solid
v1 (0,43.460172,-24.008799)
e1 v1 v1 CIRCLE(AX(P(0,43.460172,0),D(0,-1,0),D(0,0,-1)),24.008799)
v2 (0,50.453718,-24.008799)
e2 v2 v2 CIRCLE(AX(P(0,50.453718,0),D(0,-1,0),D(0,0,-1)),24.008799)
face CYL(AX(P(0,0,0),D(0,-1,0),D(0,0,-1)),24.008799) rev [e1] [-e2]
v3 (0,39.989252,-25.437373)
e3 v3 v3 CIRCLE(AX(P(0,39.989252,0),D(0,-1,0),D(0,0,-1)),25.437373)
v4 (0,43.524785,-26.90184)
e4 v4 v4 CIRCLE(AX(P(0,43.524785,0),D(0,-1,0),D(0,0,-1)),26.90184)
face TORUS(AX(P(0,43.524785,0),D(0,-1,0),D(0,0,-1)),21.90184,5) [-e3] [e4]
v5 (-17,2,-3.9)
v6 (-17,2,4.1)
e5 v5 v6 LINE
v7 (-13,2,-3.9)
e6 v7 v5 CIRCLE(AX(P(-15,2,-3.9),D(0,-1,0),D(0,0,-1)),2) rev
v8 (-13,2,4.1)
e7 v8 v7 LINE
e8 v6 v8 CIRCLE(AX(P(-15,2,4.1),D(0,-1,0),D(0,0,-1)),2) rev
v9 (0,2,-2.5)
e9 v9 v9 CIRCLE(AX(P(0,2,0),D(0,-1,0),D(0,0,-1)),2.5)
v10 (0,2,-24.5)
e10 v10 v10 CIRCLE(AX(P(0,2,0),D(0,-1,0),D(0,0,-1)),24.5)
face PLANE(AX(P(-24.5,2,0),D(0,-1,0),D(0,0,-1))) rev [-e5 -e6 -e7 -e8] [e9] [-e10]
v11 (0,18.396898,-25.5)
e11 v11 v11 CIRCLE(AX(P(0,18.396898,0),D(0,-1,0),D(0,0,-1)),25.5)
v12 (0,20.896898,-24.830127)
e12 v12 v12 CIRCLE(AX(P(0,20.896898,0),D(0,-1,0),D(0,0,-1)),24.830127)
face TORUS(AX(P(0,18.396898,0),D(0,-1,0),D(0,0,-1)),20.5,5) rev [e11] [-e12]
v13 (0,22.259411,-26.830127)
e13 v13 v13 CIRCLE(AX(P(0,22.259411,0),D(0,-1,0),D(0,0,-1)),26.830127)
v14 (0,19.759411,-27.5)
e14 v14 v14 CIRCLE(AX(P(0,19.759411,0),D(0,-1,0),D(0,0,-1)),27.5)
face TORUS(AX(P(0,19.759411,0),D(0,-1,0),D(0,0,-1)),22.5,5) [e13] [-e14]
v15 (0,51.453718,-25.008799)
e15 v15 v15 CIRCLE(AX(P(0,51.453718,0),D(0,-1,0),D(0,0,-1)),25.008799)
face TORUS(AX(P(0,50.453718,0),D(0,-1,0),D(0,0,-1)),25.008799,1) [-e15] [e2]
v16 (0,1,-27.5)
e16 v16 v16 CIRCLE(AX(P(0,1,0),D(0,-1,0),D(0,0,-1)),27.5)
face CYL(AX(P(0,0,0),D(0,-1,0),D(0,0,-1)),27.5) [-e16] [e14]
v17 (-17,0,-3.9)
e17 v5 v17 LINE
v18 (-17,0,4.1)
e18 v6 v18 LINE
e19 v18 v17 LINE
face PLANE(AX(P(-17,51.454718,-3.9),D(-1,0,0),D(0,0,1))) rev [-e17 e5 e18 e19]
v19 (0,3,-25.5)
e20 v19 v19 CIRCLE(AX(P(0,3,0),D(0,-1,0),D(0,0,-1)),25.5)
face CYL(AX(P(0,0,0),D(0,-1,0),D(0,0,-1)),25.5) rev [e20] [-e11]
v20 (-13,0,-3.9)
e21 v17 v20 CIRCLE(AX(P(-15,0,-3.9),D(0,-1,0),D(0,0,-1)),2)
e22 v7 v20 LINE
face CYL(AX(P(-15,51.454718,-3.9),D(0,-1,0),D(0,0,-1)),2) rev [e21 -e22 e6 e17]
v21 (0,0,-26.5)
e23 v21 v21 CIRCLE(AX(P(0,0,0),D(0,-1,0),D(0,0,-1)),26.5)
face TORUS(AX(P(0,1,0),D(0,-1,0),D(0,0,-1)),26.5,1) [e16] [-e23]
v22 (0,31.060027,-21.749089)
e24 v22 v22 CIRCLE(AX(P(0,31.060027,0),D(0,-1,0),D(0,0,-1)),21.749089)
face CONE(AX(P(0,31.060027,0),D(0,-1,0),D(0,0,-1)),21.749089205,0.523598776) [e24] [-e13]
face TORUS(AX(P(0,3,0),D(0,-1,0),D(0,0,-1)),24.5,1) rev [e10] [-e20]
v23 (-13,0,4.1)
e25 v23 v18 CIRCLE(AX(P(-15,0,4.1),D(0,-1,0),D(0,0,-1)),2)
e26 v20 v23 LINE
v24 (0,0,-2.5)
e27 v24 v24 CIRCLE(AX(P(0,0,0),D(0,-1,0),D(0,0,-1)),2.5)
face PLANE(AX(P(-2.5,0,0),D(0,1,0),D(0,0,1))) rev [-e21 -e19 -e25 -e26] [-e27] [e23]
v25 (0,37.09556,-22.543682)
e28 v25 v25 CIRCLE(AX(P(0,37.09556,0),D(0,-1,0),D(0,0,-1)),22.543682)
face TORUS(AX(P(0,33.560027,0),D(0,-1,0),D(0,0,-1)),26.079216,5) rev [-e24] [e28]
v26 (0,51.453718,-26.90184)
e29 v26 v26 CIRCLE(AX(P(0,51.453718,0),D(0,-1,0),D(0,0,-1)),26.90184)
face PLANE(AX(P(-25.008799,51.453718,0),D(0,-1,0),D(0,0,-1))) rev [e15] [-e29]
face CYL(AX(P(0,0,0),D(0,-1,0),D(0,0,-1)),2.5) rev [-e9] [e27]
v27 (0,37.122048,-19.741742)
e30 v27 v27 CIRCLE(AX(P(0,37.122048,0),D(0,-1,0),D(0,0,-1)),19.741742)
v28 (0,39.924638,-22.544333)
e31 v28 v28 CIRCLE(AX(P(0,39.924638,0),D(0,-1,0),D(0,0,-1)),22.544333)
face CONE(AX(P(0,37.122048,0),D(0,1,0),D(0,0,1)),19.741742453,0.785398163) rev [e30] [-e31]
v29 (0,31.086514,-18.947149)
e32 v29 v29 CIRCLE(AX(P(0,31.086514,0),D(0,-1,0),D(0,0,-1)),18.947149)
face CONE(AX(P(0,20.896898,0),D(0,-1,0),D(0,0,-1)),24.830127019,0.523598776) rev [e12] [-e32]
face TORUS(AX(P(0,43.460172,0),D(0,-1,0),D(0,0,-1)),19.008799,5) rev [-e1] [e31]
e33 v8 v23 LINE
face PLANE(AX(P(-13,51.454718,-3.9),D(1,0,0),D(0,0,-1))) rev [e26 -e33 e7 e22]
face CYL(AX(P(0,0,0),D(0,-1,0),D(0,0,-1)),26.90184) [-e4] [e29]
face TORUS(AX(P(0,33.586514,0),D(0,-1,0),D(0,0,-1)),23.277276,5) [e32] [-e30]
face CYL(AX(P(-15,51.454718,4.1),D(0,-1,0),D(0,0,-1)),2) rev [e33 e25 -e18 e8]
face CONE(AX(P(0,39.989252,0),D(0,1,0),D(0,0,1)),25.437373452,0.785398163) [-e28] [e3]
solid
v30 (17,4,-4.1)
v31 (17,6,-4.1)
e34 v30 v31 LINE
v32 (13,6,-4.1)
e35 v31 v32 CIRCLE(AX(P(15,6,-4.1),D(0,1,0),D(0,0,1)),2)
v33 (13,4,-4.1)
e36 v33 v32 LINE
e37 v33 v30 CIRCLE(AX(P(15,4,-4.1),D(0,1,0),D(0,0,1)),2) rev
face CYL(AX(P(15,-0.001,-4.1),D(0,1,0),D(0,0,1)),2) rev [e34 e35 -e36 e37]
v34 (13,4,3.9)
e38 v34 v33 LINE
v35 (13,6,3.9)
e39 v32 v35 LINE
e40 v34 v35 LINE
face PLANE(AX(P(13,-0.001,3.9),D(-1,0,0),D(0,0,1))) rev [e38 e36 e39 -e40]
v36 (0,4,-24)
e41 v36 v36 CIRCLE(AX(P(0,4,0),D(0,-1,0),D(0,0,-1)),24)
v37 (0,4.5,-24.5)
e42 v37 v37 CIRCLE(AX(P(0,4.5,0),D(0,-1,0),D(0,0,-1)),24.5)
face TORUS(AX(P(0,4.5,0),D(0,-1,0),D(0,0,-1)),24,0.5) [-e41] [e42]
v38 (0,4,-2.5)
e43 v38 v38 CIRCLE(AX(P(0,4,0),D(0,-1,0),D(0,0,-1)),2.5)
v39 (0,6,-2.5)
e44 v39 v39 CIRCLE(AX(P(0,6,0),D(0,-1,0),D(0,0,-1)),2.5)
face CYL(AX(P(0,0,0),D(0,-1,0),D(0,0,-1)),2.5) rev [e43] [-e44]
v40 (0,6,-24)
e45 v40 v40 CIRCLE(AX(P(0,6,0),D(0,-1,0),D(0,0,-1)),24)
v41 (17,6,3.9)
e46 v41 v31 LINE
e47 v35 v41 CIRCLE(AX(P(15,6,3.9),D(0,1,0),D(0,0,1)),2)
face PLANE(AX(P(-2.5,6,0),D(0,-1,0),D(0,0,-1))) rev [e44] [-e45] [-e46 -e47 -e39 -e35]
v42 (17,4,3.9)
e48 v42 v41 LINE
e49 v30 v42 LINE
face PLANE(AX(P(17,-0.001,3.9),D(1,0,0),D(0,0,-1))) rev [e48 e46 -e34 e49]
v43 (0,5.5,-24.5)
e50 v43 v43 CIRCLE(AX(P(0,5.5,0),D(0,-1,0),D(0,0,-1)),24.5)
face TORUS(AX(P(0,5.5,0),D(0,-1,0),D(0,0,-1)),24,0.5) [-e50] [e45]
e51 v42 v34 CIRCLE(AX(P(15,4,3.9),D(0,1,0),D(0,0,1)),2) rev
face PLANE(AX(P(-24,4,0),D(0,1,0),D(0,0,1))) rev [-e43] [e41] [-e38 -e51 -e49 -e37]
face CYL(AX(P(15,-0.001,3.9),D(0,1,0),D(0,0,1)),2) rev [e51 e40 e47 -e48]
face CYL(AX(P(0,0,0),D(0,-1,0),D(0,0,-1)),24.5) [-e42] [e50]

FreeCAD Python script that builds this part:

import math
import FreeCAD as App
import Part
import Sketcher
Q = App.Units.Quantity

doc = App.newDocument("Part")
body = doc.addObject("PartDesign::Body", "Body")
body.AllowCompound = True

sketch1 = body.newObject("Sketcher::SketchObject", "Sketch")
sketch1.AttachmentSupport = (doc.getObject("XY_Plane"), [""])
sketch1.MapMode = "FlatFace"
sketch1.addGeometry([
    Part.LineSegment(App.Vector(-26.5, 0, 0), App.Vector(-2.5, 0, 0)),
    Part.LineSegment(App.Vector(-2.5, 0, 0), App.Vector(-2.5, 2, 0)),
    Part.LineSegment(App.Vector(-2.5, 2, 0), App.Vector(-24.5, 2, 0)),
    Part.ArcOfCircle(Part.Circle(App.Vector(-24.5, 3, 0), App.Vector(0, 0, 1), 1), math.radians(-180), math.radians(-90)),
    Part.LineSegment(App.Vector(-25.5, 3, 0), App.Vector(-25.5, 18.4, 0)),
    Part.ArcOfCircle(Part.Circle(App.Vector(-20.5, 18.4, 0), App.Vector(0, 0, 1), 5), math.radians(150), math.radians(180)),
    Part.LineSegment(App.Vector(-24.83, 20.9, 0), App.Vector(-18.95, 31.09, 0)),
    Part.ArcOfCircle(Part.Circle(App.Vector(-23.28, 33.59, 0), App.Vector(0, 0, 1), 5), math.radians(-30), math.radians(45)),
    Part.LineSegment(App.Vector(-19.74, 37.12, 0), App.Vector(-22.54, 39.92, 0)),
    Part.ArcOfCircle(Part.Circle(App.Vector(-19.01, 43.46, 0), App.Vector(0, 0, 1), 5), math.radians(-180), math.radians(-135)),
    Part.LineSegment(App.Vector(-24.01, 43.46, 0), App.Vector(-24.01, 50.45, 0)),
    Part.ArcOfCircle(Part.Circle(App.Vector(-25.01, 50.45, 0), App.Vector(0, 0, 1), 1), math.radians(0), math.radians(90)),
    Part.LineSegment(App.Vector(-25.01, 51.45, 0), App.Vector(-26.9, 51.45, 0)),
    Part.LineSegment(App.Vector(-26.9, 51.45, 0), App.Vector(-26.9, 43.52, 0)),
    Part.ArcOfCircle(Part.Circle(App.Vector(-21.9, 43.52, 0), App.Vector(0, 0, 1), 5), math.radians(-180), math.radians(-135)),
    Part.LineSegment(App.Vector(-25.44, 39.99, 0), App.Vector(-22.54, 37.1, 0)),
    Part.ArcOfCircle(Part.Circle(App.Vector(-26.08, 33.56, 0), App.Vector(0, 0, 1), 5), math.radians(-30), math.radians(45)),
    Part.LineSegment(App.Vector(-21.75, 31.06, 0), App.Vector(-26.83, 22.26, 0)),
    Part.ArcOfCircle(Part.Circle(App.Vector(-22.5, 19.76, 0), App.Vector(0, 0, 1), 5), math.radians(150), math.radians(180)),
    Part.LineSegment(App.Vector(-27.5, 19.76, 0), App.Vector(-27.5, 1, 0)),
    Part.ArcOfCircle(Part.Circle(App.Vector(-26.5, 1, 0), App.Vector(0, 0, 1), 1), math.radians(-180), math.radians(-90)),
    Part.LineSegment(App.Vector(-2.5, 4, 0), App.Vector(-2.5, 6, 0)),
    Part.LineSegment(App.Vector(-2.5, 6, 0), App.Vector(-24, 6, 0)),
    Part.ArcOfCircle(Part.Circle(App.Vector(-24, 5.5, 0), App.Vector(0, 0, 1), 0.5), math.radians(90), math.radians(180)),
    Part.LineSegment(App.Vector(-24.5, 5.5, 0), App.Vector(-24.5, 4.5, 0)),
    Part.ArcOfCircle(Part.Circle(App.Vector(-24, 4.5, 0), App.Vector(0, 0, 1), 0.5), math.radians(180), math.radians(270)),
    Part.LineSegment(App.Vector(-24, 4, 0), App.Vector(-2.5, 4, 0)),
], False)
sketch1.addConstraint([
    Sketcher.Constraint("Coincident", 0, 2, 1, 1),
    Sketcher.Constraint("Coincident", 1, 2, 2, 1),
    Sketcher.Constraint("Tangent", 2, 2, 3, 2),
    Sketcher.Constraint("Tangent", 3, 1, 4, 1),
    Sketcher.Constraint("Tangent", 4, 2, 5, 2),
    Sketcher.Constraint("Tangent", 5, 1, 6, 1),
    Sketcher.Constraint("Tangent", 6, 2, 7, 1),
    Sketcher.Constraint("Tangent", 7, 2, 8, 1),
    Sketcher.Constraint("Tangent", 8, 2, 9, 2),
    Sketcher.Constraint("Tangent", 9, 1, 10, 1),
    Sketcher.Constraint("Tangent", 10, 2, 11, 1),
    Sketcher.Constraint("Tangent", 11, 2, 12, 1),
    Sketcher.Constraint("Coincident", 12, 2, 13, 1),
    Sketcher.Constraint("Tangent", 13, 2, 14, 1),
    Sketcher.Constraint("Tangent", 14, 2, 15, 1),
    Sketcher.Constraint("Tangent", 15, 2, 16, 2),
    Sketcher.Constraint("Tangent", 16, 1, 17, 1),
    Sketcher.Constraint("Tangent", 17, 2, 18, 1),
    Sketcher.Constraint("Tangent", 18, 2, 19, 1),
    Sketcher.Constraint("Tangent", 19, 2, 20, 1),
    Sketcher.Constraint("Tangent", 20, 2, 0, 1),
    Sketcher.Constraint("Coincident", 21, 2, 22, 1),
    Sketcher.Constraint("Tangent", 22, 2, 23, 1),
    Sketcher.Constraint("Tangent", 23, 2, 24, 1),
    Sketcher.Constraint("Tangent", 24, 2, 25, 1),
    Sketcher.Constraint("Tangent", 25, 2, 26, 1),
    Sketcher.Constraint("Coincident", 26, 2, 21, 1),
    Sketcher.Constraint("Horizontal", 0),
    Sketcher.Constraint("Vertical", 1),
    Sketcher.Constraint("Horizontal", 2),
    Sketcher.Constraint("Vertical", 4),
    Sketcher.Constraint("Vertical", 10),
    Sketcher.Constraint("Horizontal", 12),
    Sketcher.Constraint("Vertical", 13),
    Sketcher.Constraint("Vertical", 19),
    Sketcher.Constraint("Vertical", 21),
    Sketcher.Constraint("Horizontal", 22),
    Sketcher.Constraint("Vertical", 24),
    Sketcher.Constraint("Horizontal", 26),
    Sketcher.Constraint("Equal", 5, 7),
    Sketcher.Constraint("Equal", 7, 9),
    Sketcher.Constraint("Equal", 3, 11),
    Sketcher.Constraint("Equal", 9, 14),
    Sketcher.Constraint("Equal", 14, 16),
    Sketcher.Constraint("Equal", 16, 18),
    Sketcher.Constraint("Equal", 11, 20),
    Sketcher.Constraint("Equal", 23, 25),
    Sketcher.Constraint("PointOnObject", 0, 2, -1),
    Sketcher.Constraint("Parallel", 8, 15),
    Sketcher.Constraint("Parallel", 6, 17),
    Sketcher.Constraint("Vertical", 1, 2, 21, 2),
    Sketcher.Constraint("Vertical", 2, 2, 23, 2),
    Sketcher.Constraint("Equal", 1, 21),
    Sketcher.Constraint("Radius", 3, Q("1 mm")),
    Sketcher.Constraint("Radius", 5, Q("5 mm")),
    Sketcher.Constraint("Radius", 23, Q("0.5 mm")),
    Sketcher.Constraint("DistanceX", 0, 1, 0, 2, Q("24 mm")),
    Sketcher.Constraint("DistanceX", 2, 2, 2, 1, Q("22 mm")),
    Sketcher.Constraint("DistanceY", 1, 1, 1, 2, Q("2 mm")),
    Sketcher.Constraint("Angle", 6, Q("60 deg")),
    Sketcher.Constraint("Angle", 8, Q("135 deg")),
    Sketcher.Constraint("DistanceX", 23, 3, -1, 1, Q("24 mm")),
    Sketcher.Constraint("DistanceY", -1, 1, 21, 2, Q("6 mm")),
    Sketcher.Constraint("DistanceX", 12, 2, 12, 1, Q("1.89304 mm")),
    Sketcher.Constraint("DistanceY", 19, 2, 19, 1, Q("18.759411 mm")),
    Sketcher.Constraint("DistanceX", 9, 3, -1, 1, Q("19.008799 mm")),
    Sketcher.Constraint("Distance", 8, Q("3.963462 mm")),
    Sketcher.Constraint("DistanceY", 4, 1, 4, 2, Q("15.396898 mm")),
    Sketcher.Constraint("DistanceY", 10, 1, 10, 2, Q("6.993545 mm")),
    Sketcher.Constraint("DistanceY", 13, 2, 13, 1, Q("7.928932 mm")),
])
revolution = body.newObject("PartDesign::Revolution", "Revolution")
revolution.Profile = sketch1
revolution.ReferenceAxis = (sketch1, ["V_Axis"])
revolution.Angle = 360

sketch2 = body.newObject("Sketcher::SketchObject", "Sketch001")
sketch2.AttachmentSupport = (doc.getObject("XZ_Plane"), [""])
sketch2.MapMode = "FlatFace"
sketch2.AttachmentOffset = App.Placement(App.Vector(0, 0, -6), App.Rotation())
sketch2.addGeometry([
    Part.LineSegment(App.Vector(13, -4.1, 0), App.Vector(13, 3.9, 0)),
    Part.ArcOfCircle(Part.Circle(App.Vector(15, 3.9, 0), App.Vector(0, 0, 1), 2), math.radians(0), math.radians(180)),
    Part.LineSegment(App.Vector(17, 3.9, 0), App.Vector(17, -4.1, 0)),
    Part.ArcOfCircle(Part.Circle(App.Vector(15, -4.1, 0), App.Vector(0, 0, 1), 2), math.radians(180), math.radians(360)),
], False)
sketch2.addConstraint([
    Sketcher.Constraint("Tangent", 0, 2, 1, 2),
    Sketcher.Constraint("Tangent", 1, 1, 2, 1),
    Sketcher.Constraint("Tangent", 2, 2, 3, 2),
    Sketcher.Constraint("Tangent", 3, 1, 0, 1),
    Sketcher.Constraint("Vertical", 0),
    Sketcher.Constraint("Vertical", 2),
    Sketcher.Constraint("Radius", 1, Q("2 mm")),
    Sketcher.Constraint("DistanceY", 0, 1, 0, 2, Q("8 mm")),
    Sketcher.Constraint("DistanceX", -1, 1, 1, 3, Q("15 mm")),
    Sketcher.Constraint("DistanceY", -1, 1, 1, 3, Q("3.9 mm")),
])
pocket1 = body.newObject("PartDesign::Pocket", "Pocket")
pocket1.Profile = sketch2
pocket1.Type = "UpToFirst"
pocket1.Reversed = True

sketch3 = body.newObject("Sketcher::SketchObject", "Sketch002")
sketch3.AttachmentSupport = (doc.getObject("XZ_Plane"), [""])
sketch3.MapMode = "FlatFace"
sketch3.addGeometry([
    Part.LineSegment(App.Vector(-17, 4.1, 0), App.Vector(-17, -3.9, 0)),
    Part.ArcOfCircle(Part.Circle(App.Vector(-15, -3.9, 0), App.Vector(0, 0, 1), 2), math.radians(180), math.radians(360)),
    Part.LineSegment(App.Vector(-13, -3.9, 0), App.Vector(-13, 4.1, 0)),
    Part.ArcOfCircle(Part.Circle(App.Vector(-15, 4.1, 0), App.Vector(0, 0, 1), 2), math.radians(0), math.radians(180)),
], False)
sketch3.addConstraint([
    Sketcher.Constraint("Tangent", 0, 2, 1, 1),
    Sketcher.Constraint("Tangent", 1, 2, 2, 1),
    Sketcher.Constraint("Tangent", 2, 2, 3, 1),
    Sketcher.Constraint("Tangent", 3, 2, 0, 1),
    Sketcher.Constraint("Vertical", 0),
    Sketcher.Constraint("Vertical", 2),
    Sketcher.Constraint("Radius", 1, Q("2 mm")),
    Sketcher.Constraint("DistanceY", 0, 2, 0, 1, Q("8 mm")),
    Sketcher.Constraint("DistanceX", 1, 3, -1, 1, Q("15 mm")),
    Sketcher.Constraint("DistanceY", 1, 3, -1, 1, Q("3.9 mm")),
])
pocket2 = body.newObject("PartDesign::Pocket", "Pocket001")
pocket2.Profile = sketch3
pocket2.Type = "UpToFirst"

doc.recompute()
